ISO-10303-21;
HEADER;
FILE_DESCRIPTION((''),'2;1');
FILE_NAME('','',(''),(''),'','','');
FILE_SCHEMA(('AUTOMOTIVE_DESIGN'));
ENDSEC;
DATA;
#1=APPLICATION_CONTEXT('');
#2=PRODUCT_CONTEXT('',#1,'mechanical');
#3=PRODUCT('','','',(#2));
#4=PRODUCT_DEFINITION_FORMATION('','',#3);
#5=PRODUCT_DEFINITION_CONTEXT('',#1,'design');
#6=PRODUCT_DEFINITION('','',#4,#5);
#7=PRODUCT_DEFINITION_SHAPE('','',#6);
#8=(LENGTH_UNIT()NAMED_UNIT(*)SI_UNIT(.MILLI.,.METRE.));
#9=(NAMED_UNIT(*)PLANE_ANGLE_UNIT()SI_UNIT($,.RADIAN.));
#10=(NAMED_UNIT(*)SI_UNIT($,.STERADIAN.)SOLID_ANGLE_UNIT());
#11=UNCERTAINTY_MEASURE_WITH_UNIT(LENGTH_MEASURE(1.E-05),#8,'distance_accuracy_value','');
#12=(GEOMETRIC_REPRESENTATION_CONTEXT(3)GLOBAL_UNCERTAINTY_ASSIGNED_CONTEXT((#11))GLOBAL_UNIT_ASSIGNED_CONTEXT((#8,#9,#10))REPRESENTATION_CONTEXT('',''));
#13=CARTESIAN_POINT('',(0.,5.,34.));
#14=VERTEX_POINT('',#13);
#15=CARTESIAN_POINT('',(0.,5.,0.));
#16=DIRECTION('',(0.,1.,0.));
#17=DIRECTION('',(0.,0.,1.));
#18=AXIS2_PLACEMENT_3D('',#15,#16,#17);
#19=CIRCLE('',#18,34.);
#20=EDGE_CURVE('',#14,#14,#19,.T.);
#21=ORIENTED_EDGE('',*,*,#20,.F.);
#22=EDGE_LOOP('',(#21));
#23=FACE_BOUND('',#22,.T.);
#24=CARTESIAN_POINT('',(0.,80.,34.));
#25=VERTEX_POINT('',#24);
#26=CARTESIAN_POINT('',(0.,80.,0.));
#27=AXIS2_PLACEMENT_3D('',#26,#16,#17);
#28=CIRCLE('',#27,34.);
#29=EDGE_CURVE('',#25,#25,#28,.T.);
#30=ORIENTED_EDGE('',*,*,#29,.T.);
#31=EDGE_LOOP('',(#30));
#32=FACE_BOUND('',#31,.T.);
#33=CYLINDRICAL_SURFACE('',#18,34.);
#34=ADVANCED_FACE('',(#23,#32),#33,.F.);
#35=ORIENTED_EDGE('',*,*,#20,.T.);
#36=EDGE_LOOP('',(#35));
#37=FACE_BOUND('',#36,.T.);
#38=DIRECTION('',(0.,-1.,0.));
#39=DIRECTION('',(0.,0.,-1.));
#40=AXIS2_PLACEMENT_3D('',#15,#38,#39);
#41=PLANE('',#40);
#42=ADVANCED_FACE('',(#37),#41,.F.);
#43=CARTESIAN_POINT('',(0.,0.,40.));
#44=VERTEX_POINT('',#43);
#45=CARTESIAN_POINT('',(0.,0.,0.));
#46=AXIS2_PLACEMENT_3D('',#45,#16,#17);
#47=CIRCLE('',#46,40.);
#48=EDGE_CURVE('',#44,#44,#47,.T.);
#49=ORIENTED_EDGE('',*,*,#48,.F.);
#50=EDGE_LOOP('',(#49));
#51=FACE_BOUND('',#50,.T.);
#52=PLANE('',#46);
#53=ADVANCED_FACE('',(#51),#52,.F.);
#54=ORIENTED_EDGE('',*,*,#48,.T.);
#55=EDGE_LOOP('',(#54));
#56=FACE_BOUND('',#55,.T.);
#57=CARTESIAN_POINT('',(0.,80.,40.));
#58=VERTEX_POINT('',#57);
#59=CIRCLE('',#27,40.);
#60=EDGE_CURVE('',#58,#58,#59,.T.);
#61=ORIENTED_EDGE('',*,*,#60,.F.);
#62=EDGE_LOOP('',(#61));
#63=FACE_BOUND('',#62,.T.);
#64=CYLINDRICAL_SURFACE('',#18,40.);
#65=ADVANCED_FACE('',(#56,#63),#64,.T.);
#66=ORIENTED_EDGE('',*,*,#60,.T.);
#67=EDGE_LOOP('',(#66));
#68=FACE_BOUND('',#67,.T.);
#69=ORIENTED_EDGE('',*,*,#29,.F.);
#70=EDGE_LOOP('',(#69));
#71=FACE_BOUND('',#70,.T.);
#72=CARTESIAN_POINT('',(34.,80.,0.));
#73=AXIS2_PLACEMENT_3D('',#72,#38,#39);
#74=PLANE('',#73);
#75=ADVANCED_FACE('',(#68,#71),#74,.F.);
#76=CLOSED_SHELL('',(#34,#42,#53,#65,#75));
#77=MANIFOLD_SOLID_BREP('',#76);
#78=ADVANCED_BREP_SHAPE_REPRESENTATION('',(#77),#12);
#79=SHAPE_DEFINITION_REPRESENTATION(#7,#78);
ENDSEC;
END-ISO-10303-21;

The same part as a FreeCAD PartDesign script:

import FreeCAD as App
import Part
import Sketcher
Q = App.Units.Quantity


def add_polygon(sketch, points):
    """Adds a closed chain of lines whose ends are joined by coincident constraints."""
    first, n = sketch.GeometryCount, len(points)
    for a, b in zip(points, points[1:] + points[:1]):
        sketch.addGeometry(Part.LineSegment(App.Vector(*a, 0), App.Vector(*b, 0)), False)
    for i in range(n):
        sketch.addConstraint(Sketcher.Constraint("Coincident", first + i, 2, first + (i + 1) % n, 1))

doc = App.newDocument("Part")
body = doc.addObject("PartDesign::Body", "Body")

sketch1 = body.newObject("Sketcher::SketchObject", "Sketch")
sketch1.AttachmentSupport = (doc.getObject("XY_Plane"), [""])
sketch1.MapMode = "FlatFace"
add_polygon(sketch1, [(0, 0), (40, 0), (40, 80), (34, 80), (34, 5), (0, 5)])
sketch1.addConstraint([
    Sketcher.Constraint("Horizontal", 0),
    Sketcher.Constraint("Vertical", 1),
    Sketcher.Constraint("Horizontal", 2),
    Sketcher.Constraint("Vertical", 3),
    Sketcher.Constraint("Horizontal", 4),
    Sketcher.Constraint("Vertical", 5),
    Sketcher.Constraint("Coincident", 5, 2, -1, 1),
    Sketcher.Constraint("DistanceX", 0, 1, 0, 2, Q("40 mm")),
    Sketcher.Constraint("DistanceX", 2, 2, 2, 1, Q("6 mm")),
    Sketcher.Constraint("DistanceY", 1, 1, 1, 2, Q("80 mm")),
    Sketcher.Constraint("DistanceY", 3, 2, 3, 1, Q("75 mm")),
])
revolution = body.newObject("PartDesign::Revolution", "Revolution")
revolution.Profile = sketch1
revolution.ReferenceAxis = (sketch1, ["V_Axis"])
revolution.Angle = 360

doc.recompute()
